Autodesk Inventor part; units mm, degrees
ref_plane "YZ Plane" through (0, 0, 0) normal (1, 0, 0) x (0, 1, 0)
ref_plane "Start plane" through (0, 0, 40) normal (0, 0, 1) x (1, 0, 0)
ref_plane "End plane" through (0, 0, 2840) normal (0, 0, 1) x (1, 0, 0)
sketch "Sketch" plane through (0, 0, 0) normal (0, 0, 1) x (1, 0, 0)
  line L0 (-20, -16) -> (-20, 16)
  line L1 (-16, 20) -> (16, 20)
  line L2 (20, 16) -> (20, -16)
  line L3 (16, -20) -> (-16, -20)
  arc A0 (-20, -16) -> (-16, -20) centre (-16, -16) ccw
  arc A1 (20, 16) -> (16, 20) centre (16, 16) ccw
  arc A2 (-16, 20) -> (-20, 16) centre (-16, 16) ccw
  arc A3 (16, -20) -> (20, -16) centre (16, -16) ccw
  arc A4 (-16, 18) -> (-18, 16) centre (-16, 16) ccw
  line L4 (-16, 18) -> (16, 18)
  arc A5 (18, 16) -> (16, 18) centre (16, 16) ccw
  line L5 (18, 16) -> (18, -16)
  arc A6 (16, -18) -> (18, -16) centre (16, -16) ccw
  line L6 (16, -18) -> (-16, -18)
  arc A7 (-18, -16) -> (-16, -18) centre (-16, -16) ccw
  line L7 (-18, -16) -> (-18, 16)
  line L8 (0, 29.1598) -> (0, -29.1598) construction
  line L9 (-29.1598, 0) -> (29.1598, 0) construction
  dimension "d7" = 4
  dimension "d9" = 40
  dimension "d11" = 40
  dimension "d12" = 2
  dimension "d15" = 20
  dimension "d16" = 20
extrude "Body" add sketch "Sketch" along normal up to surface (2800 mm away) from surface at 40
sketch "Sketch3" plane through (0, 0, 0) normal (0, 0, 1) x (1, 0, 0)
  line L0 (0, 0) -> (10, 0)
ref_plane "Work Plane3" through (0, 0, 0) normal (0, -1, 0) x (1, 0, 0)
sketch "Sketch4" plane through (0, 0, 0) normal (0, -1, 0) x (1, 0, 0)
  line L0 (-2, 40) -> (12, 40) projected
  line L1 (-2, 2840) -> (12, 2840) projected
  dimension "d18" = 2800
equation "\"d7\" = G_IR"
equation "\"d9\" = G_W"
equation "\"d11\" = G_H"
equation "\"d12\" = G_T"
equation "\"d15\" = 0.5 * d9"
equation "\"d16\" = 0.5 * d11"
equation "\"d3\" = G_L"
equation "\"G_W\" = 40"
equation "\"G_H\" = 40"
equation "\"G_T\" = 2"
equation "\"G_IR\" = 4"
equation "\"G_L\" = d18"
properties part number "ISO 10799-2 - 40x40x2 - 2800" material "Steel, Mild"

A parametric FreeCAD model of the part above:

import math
import FreeCAD as App
import Part
import Sketcher

doc = App.newDocument("Part")
body = doc.addObject("PartDesign::Body", "Body")

# Sketch on XY plane
sketch1 = body.newObject("Sketcher::SketchObject", "Sketch")
sketch1.AttachmentSupport = (doc.getObject("XY_Plane"), [""])
sketch1.MapMode = "FlatFace"
sketch1.AttachmentOffset = App.Placement(App.Vector(0, 0, 40), App.Rotation())
sketch1.addGeometry([
    Part.LineSegment(App.Vector(-20, 16, 0), App.Vector(-20, -16, 0)),  # 0
    Part.ArcOfCircle(Part.Circle(App.Vector(-16, -16, 0), App.Vector(0, 0, 1), 4), math.radians(180), math.radians(270)),  # 1
    Part.LineSegment(App.Vector(-16, -20, 0), App.Vector(16, -20, 0)),  # 2
    Part.ArcOfCircle(Part.Circle(App.Vector(16, -16, 0), App.Vector(0, 0, 1), 4), math.radians(-90), math.radians(0)),  # 3
    Part.LineSegment(App.Vector(20, -16, 0), App.Vector(20, 16, 0)),  # 4
    Part.ArcOfCircle(Part.Circle(App.Vector(16, 16, 0), App.Vector(0, 0, 1), 4), math.radians(0), math.radians(90)),  # 5
    Part.LineSegment(App.Vector(16, 20, 0), App.Vector(-16, 20, 0)),  # 6
    Part.ArcOfCircle(Part.Circle(App.Vector(-16, 16, 0), App.Vector(0, 0, 1), 4), math.radians(90), math.radians(180)),  # 7
    Part.ArcOfCircle(Part.Circle(App.Vector(-16, 16, 0), App.Vector(0, 0, 1), 2), math.radians(90), math.radians(180)),  # 8
    Part.LineSegment(App.Vector(-16, 18, 0), App.Vector(16, 18, 0)),  # 9
    Part.ArcOfCircle(Part.Circle(App.Vector(16, 16, 0), App.Vector(0, 0, 1), 2), math.radians(0), math.radians(90)),  # 10
    Part.LineSegment(App.Vector(18, 16, 0), App.Vector(18, -16, 0)),  # 11
    Part.ArcOfCircle(Part.Circle(App.Vector(16, -16, 0), App.Vector(0, 0, 1), 2), math.radians(-90), math.radians(0)),  # 12
    Part.LineSegment(App.Vector(16, -18, 0), App.Vector(-16, -18, 0)),  # 13
    Part.ArcOfCircle(Part.Circle(App.Vector(-16, -16, 0), App.Vector(0, 0, 1), 2), math.radians(180), math.radians(270)),  # 14
    Part.LineSegment(App.Vector(-18, -16, 0), App.Vector(-18, 16, 0)),  # 15
], False)
sketch1.addConstraint([
    Sketcher.Constraint("Tangent", 0, 2, 1, 1),
    Sketcher.Constraint("Tangent", 1, 2, 2, 1),
    Sketcher.Constraint("Tangent", 2, 2, 3, 1),
    Sketcher.Constraint("Tangent", 3, 2, 4, 1),
    Sketcher.Constraint("Tangent", 4, 2, 5, 1),
    Sketcher.Constraint("Tangent", 5, 2, 6, 1),
    Sketcher.Constraint("Tangent", 6, 2, 7, 1),
    Sketcher.Constraint("Tangent", 7, 2, 0, 1),
    Sketcher.Constraint("Tangent", 8, 1, 9, 1),
    Sketcher.Constraint("Tangent", 9, 2, 10, 2),
    Sketcher.Constraint("Tangent", 10, 1, 11, 1),
    Sketcher.Constraint("Tangent", 11, 2, 12, 2),
    Sketcher.Constraint("Tangent", 12, 1, 13, 1),
    Sketcher.Constraint("Tangent", 13, 2, 14, 2),
    Sketcher.Constraint("Tangent", 14, 1, 15, 1),
    Sketcher.Constraint("Tangent", 15, 2, 8, 2),
    Sketcher.Constraint("Vertical", 0),
    Sketcher.Constraint("Horizontal", 2),
    Sketcher.Constraint("Vertical", 4),
    Sketcher.Constraint("Horizontal", 6),
    Sketcher.Constraint("Horizontal", 9),
    Sketcher.Constraint("Vertical", 11),
    Sketcher.Constraint("Horizontal", 13),
    Sketcher.Constraint("Vertical", 15),
    Sketcher.Constraint("Coincident", 8, 3, 7, 3),
    Sketcher.Constraint("Coincident", 10, 3, 5, 3),
    Sketcher.Constraint("Coincident", 12, 3, 3, 3),
    Sketcher.Constraint("Equal", 1, 3),
    Sketcher.Constraint("Equal", 3, 5),
    Sketcher.Constraint("Equal", 5, 7),
    Sketcher.Constraint("Equal", 12, 14),
    Sketcher.Constraint("Symmetric", 1, 3, 5, 3, -1, 1),
    Sketcher.Constraint("Equal", 13, 0),
    Sketcher.Constraint("Radius", 1, 4.0),
    Sketcher.Constraint("Radius", 8, 2.0),
    Sketcher.Constraint("DistanceX", 0, 2, -1, 1, 20.0),
])
pad1 = body.newObject("PartDesign::Pad", "Pad")
pad1.Profile = sketch1
pad1.Length = 2800

doc.recompute()
